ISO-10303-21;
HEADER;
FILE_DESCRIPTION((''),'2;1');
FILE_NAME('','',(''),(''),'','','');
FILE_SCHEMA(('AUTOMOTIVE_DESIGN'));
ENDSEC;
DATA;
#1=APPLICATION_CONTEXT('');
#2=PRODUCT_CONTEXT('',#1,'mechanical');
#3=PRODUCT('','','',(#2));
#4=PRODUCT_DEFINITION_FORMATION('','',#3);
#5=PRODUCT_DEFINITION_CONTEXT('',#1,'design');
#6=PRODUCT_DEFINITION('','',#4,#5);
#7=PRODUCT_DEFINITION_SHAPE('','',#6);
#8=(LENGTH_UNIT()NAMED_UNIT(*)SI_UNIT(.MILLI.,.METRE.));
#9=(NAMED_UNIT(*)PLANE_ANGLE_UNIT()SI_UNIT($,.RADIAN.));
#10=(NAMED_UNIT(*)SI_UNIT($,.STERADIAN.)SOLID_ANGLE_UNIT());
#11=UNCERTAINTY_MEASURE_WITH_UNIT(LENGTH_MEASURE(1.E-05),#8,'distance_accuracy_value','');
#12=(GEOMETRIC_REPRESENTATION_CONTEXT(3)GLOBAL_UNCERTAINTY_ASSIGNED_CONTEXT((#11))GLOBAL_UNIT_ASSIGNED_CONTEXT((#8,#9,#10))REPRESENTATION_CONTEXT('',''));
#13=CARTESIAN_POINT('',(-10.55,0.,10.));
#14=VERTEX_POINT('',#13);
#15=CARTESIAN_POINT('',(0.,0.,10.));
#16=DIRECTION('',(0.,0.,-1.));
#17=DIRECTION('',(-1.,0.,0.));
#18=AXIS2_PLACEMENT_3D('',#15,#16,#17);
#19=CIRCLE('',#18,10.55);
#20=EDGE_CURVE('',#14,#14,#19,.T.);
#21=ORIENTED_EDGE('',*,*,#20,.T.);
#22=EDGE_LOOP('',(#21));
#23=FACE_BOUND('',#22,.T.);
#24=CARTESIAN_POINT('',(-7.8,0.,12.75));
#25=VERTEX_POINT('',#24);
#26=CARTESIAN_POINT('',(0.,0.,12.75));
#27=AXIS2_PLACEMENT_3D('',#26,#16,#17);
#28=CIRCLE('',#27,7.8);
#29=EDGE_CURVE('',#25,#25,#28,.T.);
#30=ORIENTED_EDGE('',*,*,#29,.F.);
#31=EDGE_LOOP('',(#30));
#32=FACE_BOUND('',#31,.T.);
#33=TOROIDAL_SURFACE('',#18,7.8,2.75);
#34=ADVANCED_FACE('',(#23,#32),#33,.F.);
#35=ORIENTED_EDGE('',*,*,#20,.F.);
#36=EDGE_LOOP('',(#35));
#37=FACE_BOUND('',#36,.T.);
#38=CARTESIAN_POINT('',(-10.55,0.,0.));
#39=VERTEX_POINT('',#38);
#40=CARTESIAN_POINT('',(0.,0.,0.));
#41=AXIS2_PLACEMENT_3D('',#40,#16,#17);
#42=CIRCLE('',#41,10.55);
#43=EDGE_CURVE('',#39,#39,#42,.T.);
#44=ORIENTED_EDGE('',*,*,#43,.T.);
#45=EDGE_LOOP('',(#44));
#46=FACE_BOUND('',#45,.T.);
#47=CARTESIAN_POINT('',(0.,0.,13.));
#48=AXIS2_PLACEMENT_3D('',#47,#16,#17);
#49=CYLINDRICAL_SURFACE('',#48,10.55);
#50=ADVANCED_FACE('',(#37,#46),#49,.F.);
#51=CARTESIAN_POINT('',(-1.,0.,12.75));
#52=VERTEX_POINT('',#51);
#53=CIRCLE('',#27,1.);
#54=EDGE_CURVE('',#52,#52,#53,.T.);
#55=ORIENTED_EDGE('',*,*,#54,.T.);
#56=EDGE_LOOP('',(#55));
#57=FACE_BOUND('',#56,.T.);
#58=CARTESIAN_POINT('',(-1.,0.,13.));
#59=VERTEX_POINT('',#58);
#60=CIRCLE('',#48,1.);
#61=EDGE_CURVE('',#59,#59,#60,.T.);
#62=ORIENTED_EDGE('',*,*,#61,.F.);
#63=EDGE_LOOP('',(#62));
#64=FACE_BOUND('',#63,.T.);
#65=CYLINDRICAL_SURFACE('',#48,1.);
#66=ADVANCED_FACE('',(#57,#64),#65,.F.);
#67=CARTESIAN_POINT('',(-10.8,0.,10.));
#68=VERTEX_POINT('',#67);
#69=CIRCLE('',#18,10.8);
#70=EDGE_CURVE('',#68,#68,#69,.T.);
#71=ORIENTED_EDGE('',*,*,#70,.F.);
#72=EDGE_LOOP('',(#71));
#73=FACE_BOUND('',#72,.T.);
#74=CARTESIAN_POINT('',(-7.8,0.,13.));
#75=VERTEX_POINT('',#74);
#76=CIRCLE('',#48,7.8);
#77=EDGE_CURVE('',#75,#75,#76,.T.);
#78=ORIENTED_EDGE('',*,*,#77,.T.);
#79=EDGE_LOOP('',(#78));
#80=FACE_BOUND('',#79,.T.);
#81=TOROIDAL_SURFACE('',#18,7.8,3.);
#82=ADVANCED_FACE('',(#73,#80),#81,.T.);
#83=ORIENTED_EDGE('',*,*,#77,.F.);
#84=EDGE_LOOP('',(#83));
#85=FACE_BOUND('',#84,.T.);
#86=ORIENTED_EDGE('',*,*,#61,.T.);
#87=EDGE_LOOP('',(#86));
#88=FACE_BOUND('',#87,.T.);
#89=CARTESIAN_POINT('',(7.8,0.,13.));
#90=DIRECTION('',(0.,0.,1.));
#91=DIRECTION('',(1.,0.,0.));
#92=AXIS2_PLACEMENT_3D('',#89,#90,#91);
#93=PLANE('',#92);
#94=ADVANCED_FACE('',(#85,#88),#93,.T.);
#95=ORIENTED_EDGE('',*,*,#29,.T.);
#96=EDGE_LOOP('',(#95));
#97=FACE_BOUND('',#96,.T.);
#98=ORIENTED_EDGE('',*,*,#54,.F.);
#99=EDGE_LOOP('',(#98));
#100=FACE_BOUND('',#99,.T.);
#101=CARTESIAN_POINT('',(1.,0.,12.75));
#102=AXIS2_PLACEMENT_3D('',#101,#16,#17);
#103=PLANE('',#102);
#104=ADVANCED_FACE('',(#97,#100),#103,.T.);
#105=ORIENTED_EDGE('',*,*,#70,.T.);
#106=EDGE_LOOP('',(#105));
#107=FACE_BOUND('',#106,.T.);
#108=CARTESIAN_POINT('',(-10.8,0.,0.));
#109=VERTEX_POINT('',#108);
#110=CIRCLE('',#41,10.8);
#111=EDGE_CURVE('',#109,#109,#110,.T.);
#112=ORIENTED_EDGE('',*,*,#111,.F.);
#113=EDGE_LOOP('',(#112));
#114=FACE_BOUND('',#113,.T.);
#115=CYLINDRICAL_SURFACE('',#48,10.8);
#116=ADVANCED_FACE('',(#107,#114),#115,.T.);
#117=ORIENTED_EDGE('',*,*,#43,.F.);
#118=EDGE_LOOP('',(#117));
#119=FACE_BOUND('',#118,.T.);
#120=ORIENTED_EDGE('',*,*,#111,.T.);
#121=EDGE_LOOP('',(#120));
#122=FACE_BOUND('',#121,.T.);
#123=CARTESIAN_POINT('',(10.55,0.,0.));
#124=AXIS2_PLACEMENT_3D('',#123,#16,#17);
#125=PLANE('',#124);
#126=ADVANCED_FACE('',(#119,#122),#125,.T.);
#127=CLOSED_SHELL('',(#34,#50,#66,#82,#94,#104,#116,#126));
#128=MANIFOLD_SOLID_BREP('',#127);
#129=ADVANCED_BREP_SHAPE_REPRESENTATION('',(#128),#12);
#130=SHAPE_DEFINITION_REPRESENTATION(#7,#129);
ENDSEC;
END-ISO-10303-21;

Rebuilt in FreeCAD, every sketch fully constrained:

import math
import FreeCAD as App
import Part
import Sketcher

V = App.Vector

doc = App.newDocument("Part")
body = doc.addObject("PartDesign::Body", "Body")

sketch1 = body.newObject("Sketcher::SketchObject", "Sketch")
sketch1.AttachmentSupport = (doc.getObject("XZ_Plane"), [""])
sketch1.MapMode = "FlatFace"
sketch1.addGeometry([
    Part.LineSegment(V(10.8, 0, 0), V(10.8, 10, 0)),
    Part.ArcOfCircle(Part.Circle(V(7.8, 10, 0), V(0, 0, 1), 3), math.radians(0), math.radians(90)),
    Part.LineSegment(V(7.8, 13, 0), V(1, 13, 0)),
    Part.LineSegment(V(1, 13, 0), V(1, 12.75, 0)),
    Part.LineSegment(V(1, 12.75, 0), V(7.8, 12.75, 0)),
    Part.ArcOfCircle(Part.Circle(V(7.8, 10, 0), V(0, 0, 1), 2.75), math.radians(0), math.radians(90)),
    Part.LineSegment(V(10.55, 10, 0), V(10.55, 0, 0)),
    Part.LineSegment(V(10.55, 0, 0), V(10.8, 0, 0)),
], False)
sketch1.addConstraint([
    Sketcher.Constraint("Tangent", 0, 2, 1, 1),
    Sketcher.Constraint("Tangent", 1, 2, 2, 1),
    Sketcher.Constraint("Coincident", 2, 2, 3, 1),
    Sketcher.Constraint("Coincident", 3, 2, 4, 1),
    Sketcher.Constraint("Tangent", 4, 2, 5, 2),
    Sketcher.Constraint("Tangent", 5, 1, 6, 1),
    Sketcher.Constraint("Coincident", 6, 2, 7, 1),
    Sketcher.Constraint("Coincident", 7, 2, 0, 1),
    Sketcher.Constraint("Vertical", 0),
    Sketcher.Constraint("Horizontal", 2),
    Sketcher.Constraint("Vertical", 3),
    Sketcher.Constraint("Horizontal", 4),
    Sketcher.Constraint("Vertical", 6),
    Sketcher.Constraint("Horizontal", 7),
    Sketcher.Constraint("Coincident", 5, 3, 1, 3),
    Sketcher.Constraint("PointOnObject", 6, 2, -1),
    Sketcher.Constraint("Radius", 1, 3.0),
    Sketcher.Constraint("DistanceY", 0, 1, 0, 2, 10.0),
    Sketcher.Constraint("Radius", 5, 2.75),
    Sketcher.Constraint("DistanceX", 2, 2, 2, 1, 6.8),
    Sketcher.Constraint("DistanceX", -1, 1, 2, 2, 1.0),
])
revolution = body.newObject("PartDesign::Revolution", "Revolution")
revolution.Profile = sketch1
revolution.ReferenceAxis = (sketch1, ["V_Axis"])
revolution.Angle = 360

doc.recompute()
